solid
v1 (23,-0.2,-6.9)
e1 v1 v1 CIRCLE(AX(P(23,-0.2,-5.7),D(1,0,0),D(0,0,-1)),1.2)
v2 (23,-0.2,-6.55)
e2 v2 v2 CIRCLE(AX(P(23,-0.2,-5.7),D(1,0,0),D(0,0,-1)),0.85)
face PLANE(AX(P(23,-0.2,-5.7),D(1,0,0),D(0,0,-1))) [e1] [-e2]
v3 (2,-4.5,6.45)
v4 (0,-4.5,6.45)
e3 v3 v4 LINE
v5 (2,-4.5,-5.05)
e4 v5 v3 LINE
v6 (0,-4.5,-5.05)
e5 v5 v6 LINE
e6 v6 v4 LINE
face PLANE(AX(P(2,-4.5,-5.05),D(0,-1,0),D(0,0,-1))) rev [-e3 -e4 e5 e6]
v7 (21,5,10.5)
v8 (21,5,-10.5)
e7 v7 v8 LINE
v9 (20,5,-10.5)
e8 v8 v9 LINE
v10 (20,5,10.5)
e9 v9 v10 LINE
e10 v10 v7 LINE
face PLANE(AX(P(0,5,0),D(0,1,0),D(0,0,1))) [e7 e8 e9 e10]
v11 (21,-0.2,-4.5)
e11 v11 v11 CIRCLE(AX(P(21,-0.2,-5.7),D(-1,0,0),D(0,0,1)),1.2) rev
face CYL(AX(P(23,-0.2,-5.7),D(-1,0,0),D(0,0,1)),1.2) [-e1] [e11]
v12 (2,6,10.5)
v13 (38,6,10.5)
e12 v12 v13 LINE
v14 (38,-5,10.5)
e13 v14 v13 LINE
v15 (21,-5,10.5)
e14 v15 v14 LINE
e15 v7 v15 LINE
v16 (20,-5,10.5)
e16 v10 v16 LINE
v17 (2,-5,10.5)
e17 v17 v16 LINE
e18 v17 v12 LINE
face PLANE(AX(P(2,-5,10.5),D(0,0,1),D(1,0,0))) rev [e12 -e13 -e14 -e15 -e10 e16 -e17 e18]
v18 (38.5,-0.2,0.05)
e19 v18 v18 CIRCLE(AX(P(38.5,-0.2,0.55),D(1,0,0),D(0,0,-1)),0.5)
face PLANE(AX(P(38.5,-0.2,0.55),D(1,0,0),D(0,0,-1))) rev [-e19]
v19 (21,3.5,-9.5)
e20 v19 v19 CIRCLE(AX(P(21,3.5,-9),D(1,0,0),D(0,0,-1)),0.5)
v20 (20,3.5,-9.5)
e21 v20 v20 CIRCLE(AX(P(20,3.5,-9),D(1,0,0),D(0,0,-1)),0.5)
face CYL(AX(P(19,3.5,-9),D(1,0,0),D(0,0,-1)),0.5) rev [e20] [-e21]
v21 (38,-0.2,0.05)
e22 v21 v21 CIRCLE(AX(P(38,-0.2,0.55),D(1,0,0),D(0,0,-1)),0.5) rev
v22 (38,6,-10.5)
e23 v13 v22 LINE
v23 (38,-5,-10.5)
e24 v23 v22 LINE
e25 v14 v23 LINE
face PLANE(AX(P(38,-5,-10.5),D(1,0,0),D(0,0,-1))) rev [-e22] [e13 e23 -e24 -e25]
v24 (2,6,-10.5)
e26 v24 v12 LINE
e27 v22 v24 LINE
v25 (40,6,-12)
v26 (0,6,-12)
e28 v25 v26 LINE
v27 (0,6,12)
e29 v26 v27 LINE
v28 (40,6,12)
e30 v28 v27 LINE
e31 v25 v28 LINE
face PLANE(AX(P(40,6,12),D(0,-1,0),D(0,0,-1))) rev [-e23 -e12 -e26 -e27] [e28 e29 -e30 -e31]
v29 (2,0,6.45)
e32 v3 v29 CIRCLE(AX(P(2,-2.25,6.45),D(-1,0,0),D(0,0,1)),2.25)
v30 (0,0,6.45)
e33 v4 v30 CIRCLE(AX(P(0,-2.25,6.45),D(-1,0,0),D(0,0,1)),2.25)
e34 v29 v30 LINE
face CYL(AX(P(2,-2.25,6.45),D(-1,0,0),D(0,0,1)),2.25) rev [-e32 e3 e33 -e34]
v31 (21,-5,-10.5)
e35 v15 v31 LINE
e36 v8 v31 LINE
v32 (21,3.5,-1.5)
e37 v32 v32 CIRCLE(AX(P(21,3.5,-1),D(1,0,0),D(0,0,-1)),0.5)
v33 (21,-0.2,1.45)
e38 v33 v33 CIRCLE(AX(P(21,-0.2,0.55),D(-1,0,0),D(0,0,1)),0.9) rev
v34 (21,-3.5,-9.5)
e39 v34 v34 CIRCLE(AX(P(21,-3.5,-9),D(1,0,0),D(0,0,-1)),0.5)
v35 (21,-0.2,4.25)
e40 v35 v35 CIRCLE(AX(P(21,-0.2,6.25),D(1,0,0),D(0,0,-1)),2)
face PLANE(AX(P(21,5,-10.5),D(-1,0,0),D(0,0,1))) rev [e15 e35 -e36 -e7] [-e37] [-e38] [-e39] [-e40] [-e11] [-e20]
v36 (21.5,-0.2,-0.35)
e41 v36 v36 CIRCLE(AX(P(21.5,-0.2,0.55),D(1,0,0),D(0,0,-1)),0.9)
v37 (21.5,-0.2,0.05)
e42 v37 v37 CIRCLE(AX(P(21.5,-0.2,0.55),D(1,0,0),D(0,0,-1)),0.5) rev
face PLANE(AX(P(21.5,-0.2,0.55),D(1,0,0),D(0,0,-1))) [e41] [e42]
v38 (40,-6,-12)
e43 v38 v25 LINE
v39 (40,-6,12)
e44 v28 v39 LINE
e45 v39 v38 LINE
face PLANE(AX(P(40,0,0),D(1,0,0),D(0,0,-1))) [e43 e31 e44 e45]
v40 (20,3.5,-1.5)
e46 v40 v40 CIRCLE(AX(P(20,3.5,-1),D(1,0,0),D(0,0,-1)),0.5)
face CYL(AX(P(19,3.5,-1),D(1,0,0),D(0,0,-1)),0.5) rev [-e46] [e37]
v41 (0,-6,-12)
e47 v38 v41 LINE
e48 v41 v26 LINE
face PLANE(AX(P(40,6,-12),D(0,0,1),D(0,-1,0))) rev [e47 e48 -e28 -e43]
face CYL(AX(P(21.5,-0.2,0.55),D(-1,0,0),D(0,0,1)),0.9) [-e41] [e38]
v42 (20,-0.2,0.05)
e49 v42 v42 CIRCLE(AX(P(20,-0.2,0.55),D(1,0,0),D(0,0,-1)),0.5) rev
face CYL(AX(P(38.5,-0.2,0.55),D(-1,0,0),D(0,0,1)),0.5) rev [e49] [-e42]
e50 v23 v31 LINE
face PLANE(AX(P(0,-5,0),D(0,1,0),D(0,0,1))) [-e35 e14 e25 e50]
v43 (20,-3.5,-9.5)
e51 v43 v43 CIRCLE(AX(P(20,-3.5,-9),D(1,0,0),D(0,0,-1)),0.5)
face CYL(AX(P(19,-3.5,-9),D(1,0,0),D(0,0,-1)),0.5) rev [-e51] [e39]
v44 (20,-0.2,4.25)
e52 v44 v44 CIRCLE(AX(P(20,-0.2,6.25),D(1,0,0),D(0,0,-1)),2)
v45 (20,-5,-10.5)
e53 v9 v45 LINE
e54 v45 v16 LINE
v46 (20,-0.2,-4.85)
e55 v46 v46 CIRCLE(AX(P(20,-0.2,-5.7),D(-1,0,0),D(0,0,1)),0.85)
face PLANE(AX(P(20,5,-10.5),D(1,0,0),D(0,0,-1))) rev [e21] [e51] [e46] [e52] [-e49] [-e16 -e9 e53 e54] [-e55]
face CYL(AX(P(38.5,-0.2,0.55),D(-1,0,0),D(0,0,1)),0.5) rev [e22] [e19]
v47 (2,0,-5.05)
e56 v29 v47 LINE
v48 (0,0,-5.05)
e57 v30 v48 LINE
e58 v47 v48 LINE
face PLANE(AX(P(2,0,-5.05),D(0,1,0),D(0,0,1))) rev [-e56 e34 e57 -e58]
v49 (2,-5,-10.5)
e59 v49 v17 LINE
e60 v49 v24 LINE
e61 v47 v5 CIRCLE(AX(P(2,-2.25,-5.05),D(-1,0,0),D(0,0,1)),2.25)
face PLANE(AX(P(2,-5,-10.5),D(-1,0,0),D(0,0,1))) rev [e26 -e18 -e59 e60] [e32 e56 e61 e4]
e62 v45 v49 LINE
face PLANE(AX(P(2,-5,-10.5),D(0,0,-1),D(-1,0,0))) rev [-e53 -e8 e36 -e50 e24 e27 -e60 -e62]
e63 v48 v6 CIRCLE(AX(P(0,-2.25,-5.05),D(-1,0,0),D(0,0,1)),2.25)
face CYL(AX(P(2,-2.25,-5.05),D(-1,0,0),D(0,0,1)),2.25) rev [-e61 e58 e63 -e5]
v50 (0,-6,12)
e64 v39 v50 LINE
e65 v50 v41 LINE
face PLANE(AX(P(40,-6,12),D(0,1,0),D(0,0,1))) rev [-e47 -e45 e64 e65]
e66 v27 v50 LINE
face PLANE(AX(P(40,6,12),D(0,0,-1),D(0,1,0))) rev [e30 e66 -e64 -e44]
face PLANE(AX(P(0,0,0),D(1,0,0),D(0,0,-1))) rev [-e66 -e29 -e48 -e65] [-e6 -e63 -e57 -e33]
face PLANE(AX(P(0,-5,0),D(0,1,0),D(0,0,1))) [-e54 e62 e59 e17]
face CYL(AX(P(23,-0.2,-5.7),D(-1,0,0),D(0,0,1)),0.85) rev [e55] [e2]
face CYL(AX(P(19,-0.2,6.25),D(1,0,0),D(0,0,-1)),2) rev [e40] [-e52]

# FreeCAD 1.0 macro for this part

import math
import FreeCAD as App
import Part
import Sketcher
from FreeCAD import Vector


def add_polygon(sketch, points):
    """Adds a closed chain of lines whose ends are joined by coincident constraints."""
    first, n = sketch.GeometryCount, len(points)
    for a, b in zip(points, points[1:] + points[:1]):
        sketch.addGeometry(Part.LineSegment(App.Vector(*a, 0), App.Vector(*b, 0)), False)
    for i in range(n):
        sketch.addConstraint(Sketcher.Constraint("Coincident", first + i, 2, first + (i + 1) % n, 1))

doc = App.newDocument("Part")
params = doc.addObject("Spreadsheet::Sheet", "Params")
for row, (alias, value) in enumerate([
    ("sketch1_width", "12 mm"),
    ("sketch1_height", "24 mm"),
    ("pad1_length", "40 mm"),
    ("sketch2_width", "36 mm"),
    ("sketch2_height", "21 mm"),
    ("pocket1_length", "11 mm"),
    ("sketch3_radius", "2.25 mm"),
    ("sketch3_height", "11.5 mm"),
    ("pocket2_length", "2 mm"),
    ("sketch4_width", "1 mm"),
    ("sketch4_height", "21 mm"),
    ("pad2_length", "10 mm"),
    ("sketch5_diameter", "1.7 mm"),
    ("pocket3_length", "3 mm"),
    ("sketch6_diameter", "2.4 mm"),
    ("pad3_length", "2 mm"),
    ("sketch7_diameter", "1.7 mm"),
    ("pocket4_length", "2 mm"),
    ("sketch8_diameter", "1.8 mm"),
    ("pad4_length", "0.5 mm"),
    ("sketch9_diameter", "1 mm"),
    ("pocket5_length", "17 mm"),
    ("pocket5_length2", "2 mm"),
    ("sketch10_diameter", "4 mm"),
    ("pocket6_length", "2 mm"),
    ("sketch11_diameter", "1 mm"),
    ("pocket7_length", "2 mm"),
], start=1):
    params.set(f"A{row}", alias)
    params.set(f"B{row}", "=" + value)
    params.setAlias(f"B{row}", alias)

body = doc.addObject("PartDesign::Body", "Body")

# Sketch on YZ plane
sketch1 = body.newObject("Sketcher::SketchObject", "Sketch")
sketch1.AttachmentSupport = (doc.getObject("YZ_Plane"), [""])
sketch1.MapMode = "FlatFace"
add_polygon(sketch1, [(6, 12), (-6, 12), (-6, -12), (6, -12)])  # lines 0-3
sketch1.addConstraint([
    Sketcher.Constraint("Horizontal", 0),
    Sketcher.Constraint("Vertical", 1),
    Sketcher.Constraint("Horizontal", 2),
    Sketcher.Constraint("Vertical", 3),
    Sketcher.Constraint("Symmetric", 0, 2, 2, 2, -1, 1),
    Sketcher.Constraint("DistanceX", 0, 2, 0, 1, 12.0),
    Sketcher.Constraint("DistanceY", 1, 2, 1, 1, 24.0),
])
sketch1.setExpression("Constraints[9]", "Params.sketch1_width")
sketch1.setExpression("Constraints[10]", "Params.sketch1_height")
pad1 = body.newObject("PartDesign::Pad", "Pad")
pad1.Profile = sketch1
pad1.setExpression("Length", "Params.pad1_length")

# Sketch on XZ plane
sketch2 = body.newObject("Sketcher::SketchObject", "Sketch001")
sketch2.AttachmentSupport = (doc.getObject("XZ_Plane"), [""])
sketch2.MapMode = "FlatFace"
sketch2.AttachmentOffset = App.Placement(Vector(0, 0, -6), App.Rotation())
add_polygon(sketch2, [(2, -10.5), (2, 10.5), (38, 10.5), (38, -10.5)])  # lines 0-3
sketch2.addConstraint([
    Sketcher.Constraint("Vertical", 0),
    Sketcher.Constraint("Horizontal", 1),
    Sketcher.Constraint("Vertical", 2),
    Sketcher.Constraint("Horizontal", 3),
    Sketcher.Constraint("DistanceX", 1, 1, 1, 2, 36.0),
    Sketcher.Constraint("DistanceY", 0, 1, 0, 2, 21.0),
    Sketcher.Constraint("DistanceX", -1, 1, 0, 2, 2.0),
    Sketcher.Constraint("DistanceY", -1, 1, 0, 2, 10.5),
])
sketch2.setExpression("Constraints[8]", "Params.sketch2_width")
sketch2.setExpression("Constraints[9]", "Params.sketch2_height")
pocket1 = body.newObject("PartDesign::Pocket", "Pocket")
pocket1.Profile = sketch2
pocket1.setExpression("Length", "Params.pocket1_length")
pocket1.Reversed = True

# Sketch on YZ plane
sketch3 = body.newObject("Sketcher::SketchObject", "Sketch002")
sketch3.AttachmentSupport = (doc.getObject("YZ_Plane"), [""])
sketch3.MapMode = "FlatFace"
sketch3.addGeometry([
    Part.LineSegment(Vector(0, 6.45, 0), Vector(0, -5.05, 0)),
    Part.ArcOfCircle(Part.Circle(Vector(-2.25, -5.05, 0), Vector(0, 0, 1), 2.25), math.radians(180), math.radians(360)),
    Part.LineSegment(Vector(-4.5, -5.05, 0), Vector(-4.5, 6.45, 0)),
    Part.ArcOfCircle(Part.Circle(Vector(-2.25, 6.45, 0), Vector(0, 0, 1), 2.25), math.radians(0), math.radians(180)),
], False)
sketch3.addConstraint([
    Sketcher.Constraint("Tangent", 0, 2, 1, 2),
    Sketcher.Constraint("Tangent", 1, 1, 2, 1),
    Sketcher.Constraint("Tangent", 2, 2, 3, 2),
    Sketcher.Constraint("Tangent", 3, 1, 0, 1),
    Sketcher.Constraint("Vertical", 0),
    Sketcher.Constraint("Vertical", 2),
    Sketcher.Constraint("PointOnObject", 0, 2, -2),
    Sketcher.Constraint("Radius", 1, 2.25),
    Sketcher.Constraint("DistanceY", 0, 2, 0, 1, 11.5),
    Sketcher.Constraint("DistanceY", 1, 3, -1, 1, 5.05),
])
sketch3.setExpression("Constraints[7]", "Params.sketch3_radius")
sketch3.setExpression("Constraints[8]", "Params.sketch3_height")
pocket2 = body.newObject("PartDesign::Pocket", "Pocket001")
pocket2.Profile = sketch3
pocket2.setExpression("Length", "Params.pocket2_length")
pocket2.Reversed = True

# Sketch on XZ plane
sketch4 = body.newObject("Sketcher::SketchObject", "Sketch003")
sketch4.AttachmentSupport = (doc.getObject("XZ_Plane"), [""])
sketch4.MapMode = "FlatFace"
sketch4.AttachmentOffset = App.Placement(Vector(0, 0, 5), App.Rotation())
add_polygon(sketch4, [(20, -10.5), (20, 10.5), (21, 10.5), (21, -10.5)])  # lines 0-3
sketch4.addConstraint([
    Sketcher.Constraint("Vertical", 0),
    Sketcher.Constraint("Horizontal", 1),
    Sketcher.Constraint("Vertical", 2),
    Sketcher.Constraint("Horizontal", 3),
    Sketcher.Constraint("DistanceX", 1, 1, 1, 2, 1.0),
    Sketcher.Constraint("DistanceY", 0, 1, 0, 2, 21.0),
    Sketcher.Constraint("DistanceX", -1, 1, 0, 2, 20.0),
    Sketcher.Constraint("DistanceY", -1, 1, 0, 2, 10.5),
])
sketch4.setExpression("Constraints[8]", "Params.sketch4_width")
sketch4.setExpression("Constraints[9]", "Params.sketch4_height")
pad2 = body.newObject("PartDesign::Pad", "Pad001")
pad2.Profile = sketch4
pad2.setExpression("Length", "Params.pad2_length")
pad2.Reversed = True

# Sketch on YZ plane
sketch5 = body.newObject("Sketcher::SketchObject", "Sketch004")
sketch5.AttachmentSupport = (doc.getObject("YZ_Plane"), [""])
sketch5.MapMode = "FlatFace"
sketch5.AttachmentOffset = App.Placement(Vector(0, 0, 20), App.Rotation())
sketch5.addGeometry(Part.Circle(Vector(-0.2, -5.7, 0), Vector(0, 0, 1), 0.85), False)
sketch5.addConstraint([
    Sketcher.Constraint("Diameter", 0, 1.7),
    Sketcher.Constraint("DistanceX", 0, 3, -1, 1, 0.2),
    Sketcher.Constraint("DistanceY", 0, 3, -1, 1, 5.7),
])
sketch5.setExpression("Constraints[0]", "Params.sketch5_diameter")
pocket3 = body.newObject("PartDesign::Pocket", "Pocket002")
pocket3.Profile = sketch5
pocket3.setExpression("Length", "Params.pocket3_length")
pocket3.Reversed = True

# Sketch on YZ plane
sketch6 = body.newObject("Sketcher::SketchObject", "Sketch005")
sketch6.AttachmentSupport = (doc.getObject("YZ_Plane"), [""])
sketch6.MapMode = "FlatFace"
sketch6.AttachmentOffset = App.Placement(Vector(0, 0, 21), App.Rotation())
sketch6.addGeometry(Part.Circle(Vector(-0.2, -5.7, 0), Vector(0, 0, 1), 1.2), False)
sketch6.addConstraint([
    Sketcher.Constraint("Diameter", 0, 2.4),
    Sketcher.Constraint("DistanceX", 0, 3, -1, 1, 0.2),
    Sketcher.Constraint("DistanceY", 0, 3, -1, 1, 5.7),
])
sketch6.setExpression("Constraints[0]", "Params.sketch6_diameter")
pad3 = body.newObject("PartDesign::Pad", "Pad002")
pad3.Profile = sketch6
pad3.setExpression("Length", "Params.pad3_length")

# Sketch on YZ plane
sketch7 = body.newObject("Sketcher::SketchObject", "Sketch006")
sketch7.AttachmentSupport = (doc.getObject("YZ_Plane"), [""])
sketch7.MapMode = "FlatFace"
sketch7.AttachmentOffset = App.Placement(Vector(0, 0, 21), App.Rotation())
sketch7.addGeometry(Part.Circle(Vector(-0.2, -5.7, 0), Vector(0, 0, 1), 0.85), False)
sketch7.addConstraint([
    Sketcher.Constraint("Diameter", 0, 1.7),
    Sketcher.Constraint("DistanceX", 0, 3, -1, 1, 0.2),
    Sketcher.Constraint("DistanceY", 0, 3, -1, 1, 5.7),
])
sketch7.setExpression("Constraints[0]", "Params.sketch7_diameter")
pocket4 = body.newObject("PartDesign::Pocket", "Pocket003")
pocket4.Profile = sketch7
pocket4.setExpression("Length", "Params.pocket4_length")
pocket4.Reversed = True

# Sketch on YZ plane
sketch8 = body.newObject("Sketcher::SketchObject", "Sketch007")
sketch8.AttachmentSupport = (doc.getObject("YZ_Plane"), [""])
sketch8.MapMode = "FlatFace"
sketch8.AttachmentOffset = App.Placement(Vector(0, 0, 21), App.Rotation())
sketch8.addGeometry(Part.Circle(Vector(-0.2, 0.55, 0), Vector(0, 0, 1), 0.9), False)
sketch8.addConstraint([
    Sketcher.Constraint("Diameter", 0, 1.8),
    Sketcher.Constraint("DistanceX", 0, 3, -1, 1, 0.2),
    Sketcher.Constraint("DistanceY", -1, 1, 0, 3, 0.55),
])
sketch8.setExpression("Constraints[0]", "Params.sketch8_diameter")
pad4 = body.newObject("PartDesign::Pad", "Pad003")
pad4.Profile = sketch8
pad4.setExpression("Length", "Params.pad4_length")

# Sketch on YZ plane
sketch9 = body.newObject("Sketcher::SketchObject", "Sketch008")
sketch9.AttachmentSupport = (doc.getObject("YZ_Plane"), [""])
sketch9.MapMode = "FlatFace"
sketch9.AttachmentOffset = App.Placement(Vector(0, 0, 21.5), App.Rotation())
sketch9.addGeometry(Part.Circle(Vector(-0.2, 0.55, 0), Vector(0, 0, 1), 0.5), False)
sketch9.addConstraint([
    Sketcher.Constraint("Diameter", 0, 1.0),
    Sketcher.Constraint("DistanceX", 0, 3, -1, 1, 0.2),
    Sketcher.Constraint("DistanceY", -1, 1, 0, 3, 0.55),
])
sketch9.setExpression("Constraints[0]", "Params.sketch9_diameter")
pocket5 = body.newObject("PartDesign::Pocket", "Pocket004")
pocket5.Profile = sketch9
pocket5.Type = "TwoLengths"
pocket5.setExpression("Length", "Params.pocket5_length")
pocket5.setExpression("Length2", "Params.pocket5_length2")
pocket5.Reversed = True

# Sketch on YZ plane
sketch10 = body.newObject("Sketcher::SketchObject", "Sketch009")
sketch10.AttachmentSupport = (doc.getObject("YZ_Plane"), [""])
sketch10.MapMode = "FlatFace"
sketch10.AttachmentOffset = App.Placement(Vector(0, 0, 21), App.Rotation())
sketch10.addGeometry(Part.Circle(Vector(-0.2, 6.25, 0), Vector(0, 0, 1), 2), False)
sketch10.addConstraint([
    Sketcher.Constraint("Diameter", 0, 4.0),
    Sketcher.Constraint("DistanceX", 0, 3, -1, 1, 0.2),
    Sketcher.Constraint("DistanceY", -1, 1, 0, 3, 6.25),
])
sketch10.setExpression("Constraints[0]", "Params.sketch10_diameter")
pocket6 = body.newObject("PartDesign::Pocket", "Pocket005")
pocket6.Profile = sketch10
pocket6.setExpression("Length", "Params.pocket6_length")

# Sketch on YZ plane
sketch11 = body.newObject("Sketcher::SketchObject", "Sketch010")
sketch11.AttachmentSupport = (doc.getObject("YZ_Plane"), [""])
sketch11.MapMode = "FlatFace"
sketch11.AttachmentOffset = App.Placement(Vector(0, 0, 21), App.Rotation())
sketch11.addGeometry([
    Part.Circle(Vector(-3.5, -9, 0), Vector(0, 0, 1), 0.5),
    Part.Circle(Vector(3.5, -9, 0), Vector(0, 0, 1), 0.5),
    Part.Circle(Vector(3.5, -1, 0), Vector(0, 0, 1), 0.5),
], False)
sketch11.addConstraint([
    Sketcher.Constraint("Equal", 0, 1),
    Sketcher.Constraint("Equal", 1, 2),
    Sketcher.Constraint("Symmetric", 0, 3, 1, 3, -2),
    Sketcher.Constraint("Vertical", 1, 3, 2, 3),
    Sketcher.Constraint("Diameter", 0, 1.0),
    Sketcher.Constraint("DistanceY", 0, 3, -1, 1, 9.0),
    Sketcher.Constraint("DistanceY", 2, 3, -1, 1, 1.0),
    Sketcher.Constraint("DistanceX", 0, 3, 1, 3, 7.0),
])
sketch11.setExpression("Constraints[4]", "Params.sketch11_diameter")
pocket7 = body.newObject("PartDesign::Pocket", "Pocket006")
pocket7.Profile = sketch11
pocket7.setExpression("Length", "Params.pocket7_length")

doc.recompute()
